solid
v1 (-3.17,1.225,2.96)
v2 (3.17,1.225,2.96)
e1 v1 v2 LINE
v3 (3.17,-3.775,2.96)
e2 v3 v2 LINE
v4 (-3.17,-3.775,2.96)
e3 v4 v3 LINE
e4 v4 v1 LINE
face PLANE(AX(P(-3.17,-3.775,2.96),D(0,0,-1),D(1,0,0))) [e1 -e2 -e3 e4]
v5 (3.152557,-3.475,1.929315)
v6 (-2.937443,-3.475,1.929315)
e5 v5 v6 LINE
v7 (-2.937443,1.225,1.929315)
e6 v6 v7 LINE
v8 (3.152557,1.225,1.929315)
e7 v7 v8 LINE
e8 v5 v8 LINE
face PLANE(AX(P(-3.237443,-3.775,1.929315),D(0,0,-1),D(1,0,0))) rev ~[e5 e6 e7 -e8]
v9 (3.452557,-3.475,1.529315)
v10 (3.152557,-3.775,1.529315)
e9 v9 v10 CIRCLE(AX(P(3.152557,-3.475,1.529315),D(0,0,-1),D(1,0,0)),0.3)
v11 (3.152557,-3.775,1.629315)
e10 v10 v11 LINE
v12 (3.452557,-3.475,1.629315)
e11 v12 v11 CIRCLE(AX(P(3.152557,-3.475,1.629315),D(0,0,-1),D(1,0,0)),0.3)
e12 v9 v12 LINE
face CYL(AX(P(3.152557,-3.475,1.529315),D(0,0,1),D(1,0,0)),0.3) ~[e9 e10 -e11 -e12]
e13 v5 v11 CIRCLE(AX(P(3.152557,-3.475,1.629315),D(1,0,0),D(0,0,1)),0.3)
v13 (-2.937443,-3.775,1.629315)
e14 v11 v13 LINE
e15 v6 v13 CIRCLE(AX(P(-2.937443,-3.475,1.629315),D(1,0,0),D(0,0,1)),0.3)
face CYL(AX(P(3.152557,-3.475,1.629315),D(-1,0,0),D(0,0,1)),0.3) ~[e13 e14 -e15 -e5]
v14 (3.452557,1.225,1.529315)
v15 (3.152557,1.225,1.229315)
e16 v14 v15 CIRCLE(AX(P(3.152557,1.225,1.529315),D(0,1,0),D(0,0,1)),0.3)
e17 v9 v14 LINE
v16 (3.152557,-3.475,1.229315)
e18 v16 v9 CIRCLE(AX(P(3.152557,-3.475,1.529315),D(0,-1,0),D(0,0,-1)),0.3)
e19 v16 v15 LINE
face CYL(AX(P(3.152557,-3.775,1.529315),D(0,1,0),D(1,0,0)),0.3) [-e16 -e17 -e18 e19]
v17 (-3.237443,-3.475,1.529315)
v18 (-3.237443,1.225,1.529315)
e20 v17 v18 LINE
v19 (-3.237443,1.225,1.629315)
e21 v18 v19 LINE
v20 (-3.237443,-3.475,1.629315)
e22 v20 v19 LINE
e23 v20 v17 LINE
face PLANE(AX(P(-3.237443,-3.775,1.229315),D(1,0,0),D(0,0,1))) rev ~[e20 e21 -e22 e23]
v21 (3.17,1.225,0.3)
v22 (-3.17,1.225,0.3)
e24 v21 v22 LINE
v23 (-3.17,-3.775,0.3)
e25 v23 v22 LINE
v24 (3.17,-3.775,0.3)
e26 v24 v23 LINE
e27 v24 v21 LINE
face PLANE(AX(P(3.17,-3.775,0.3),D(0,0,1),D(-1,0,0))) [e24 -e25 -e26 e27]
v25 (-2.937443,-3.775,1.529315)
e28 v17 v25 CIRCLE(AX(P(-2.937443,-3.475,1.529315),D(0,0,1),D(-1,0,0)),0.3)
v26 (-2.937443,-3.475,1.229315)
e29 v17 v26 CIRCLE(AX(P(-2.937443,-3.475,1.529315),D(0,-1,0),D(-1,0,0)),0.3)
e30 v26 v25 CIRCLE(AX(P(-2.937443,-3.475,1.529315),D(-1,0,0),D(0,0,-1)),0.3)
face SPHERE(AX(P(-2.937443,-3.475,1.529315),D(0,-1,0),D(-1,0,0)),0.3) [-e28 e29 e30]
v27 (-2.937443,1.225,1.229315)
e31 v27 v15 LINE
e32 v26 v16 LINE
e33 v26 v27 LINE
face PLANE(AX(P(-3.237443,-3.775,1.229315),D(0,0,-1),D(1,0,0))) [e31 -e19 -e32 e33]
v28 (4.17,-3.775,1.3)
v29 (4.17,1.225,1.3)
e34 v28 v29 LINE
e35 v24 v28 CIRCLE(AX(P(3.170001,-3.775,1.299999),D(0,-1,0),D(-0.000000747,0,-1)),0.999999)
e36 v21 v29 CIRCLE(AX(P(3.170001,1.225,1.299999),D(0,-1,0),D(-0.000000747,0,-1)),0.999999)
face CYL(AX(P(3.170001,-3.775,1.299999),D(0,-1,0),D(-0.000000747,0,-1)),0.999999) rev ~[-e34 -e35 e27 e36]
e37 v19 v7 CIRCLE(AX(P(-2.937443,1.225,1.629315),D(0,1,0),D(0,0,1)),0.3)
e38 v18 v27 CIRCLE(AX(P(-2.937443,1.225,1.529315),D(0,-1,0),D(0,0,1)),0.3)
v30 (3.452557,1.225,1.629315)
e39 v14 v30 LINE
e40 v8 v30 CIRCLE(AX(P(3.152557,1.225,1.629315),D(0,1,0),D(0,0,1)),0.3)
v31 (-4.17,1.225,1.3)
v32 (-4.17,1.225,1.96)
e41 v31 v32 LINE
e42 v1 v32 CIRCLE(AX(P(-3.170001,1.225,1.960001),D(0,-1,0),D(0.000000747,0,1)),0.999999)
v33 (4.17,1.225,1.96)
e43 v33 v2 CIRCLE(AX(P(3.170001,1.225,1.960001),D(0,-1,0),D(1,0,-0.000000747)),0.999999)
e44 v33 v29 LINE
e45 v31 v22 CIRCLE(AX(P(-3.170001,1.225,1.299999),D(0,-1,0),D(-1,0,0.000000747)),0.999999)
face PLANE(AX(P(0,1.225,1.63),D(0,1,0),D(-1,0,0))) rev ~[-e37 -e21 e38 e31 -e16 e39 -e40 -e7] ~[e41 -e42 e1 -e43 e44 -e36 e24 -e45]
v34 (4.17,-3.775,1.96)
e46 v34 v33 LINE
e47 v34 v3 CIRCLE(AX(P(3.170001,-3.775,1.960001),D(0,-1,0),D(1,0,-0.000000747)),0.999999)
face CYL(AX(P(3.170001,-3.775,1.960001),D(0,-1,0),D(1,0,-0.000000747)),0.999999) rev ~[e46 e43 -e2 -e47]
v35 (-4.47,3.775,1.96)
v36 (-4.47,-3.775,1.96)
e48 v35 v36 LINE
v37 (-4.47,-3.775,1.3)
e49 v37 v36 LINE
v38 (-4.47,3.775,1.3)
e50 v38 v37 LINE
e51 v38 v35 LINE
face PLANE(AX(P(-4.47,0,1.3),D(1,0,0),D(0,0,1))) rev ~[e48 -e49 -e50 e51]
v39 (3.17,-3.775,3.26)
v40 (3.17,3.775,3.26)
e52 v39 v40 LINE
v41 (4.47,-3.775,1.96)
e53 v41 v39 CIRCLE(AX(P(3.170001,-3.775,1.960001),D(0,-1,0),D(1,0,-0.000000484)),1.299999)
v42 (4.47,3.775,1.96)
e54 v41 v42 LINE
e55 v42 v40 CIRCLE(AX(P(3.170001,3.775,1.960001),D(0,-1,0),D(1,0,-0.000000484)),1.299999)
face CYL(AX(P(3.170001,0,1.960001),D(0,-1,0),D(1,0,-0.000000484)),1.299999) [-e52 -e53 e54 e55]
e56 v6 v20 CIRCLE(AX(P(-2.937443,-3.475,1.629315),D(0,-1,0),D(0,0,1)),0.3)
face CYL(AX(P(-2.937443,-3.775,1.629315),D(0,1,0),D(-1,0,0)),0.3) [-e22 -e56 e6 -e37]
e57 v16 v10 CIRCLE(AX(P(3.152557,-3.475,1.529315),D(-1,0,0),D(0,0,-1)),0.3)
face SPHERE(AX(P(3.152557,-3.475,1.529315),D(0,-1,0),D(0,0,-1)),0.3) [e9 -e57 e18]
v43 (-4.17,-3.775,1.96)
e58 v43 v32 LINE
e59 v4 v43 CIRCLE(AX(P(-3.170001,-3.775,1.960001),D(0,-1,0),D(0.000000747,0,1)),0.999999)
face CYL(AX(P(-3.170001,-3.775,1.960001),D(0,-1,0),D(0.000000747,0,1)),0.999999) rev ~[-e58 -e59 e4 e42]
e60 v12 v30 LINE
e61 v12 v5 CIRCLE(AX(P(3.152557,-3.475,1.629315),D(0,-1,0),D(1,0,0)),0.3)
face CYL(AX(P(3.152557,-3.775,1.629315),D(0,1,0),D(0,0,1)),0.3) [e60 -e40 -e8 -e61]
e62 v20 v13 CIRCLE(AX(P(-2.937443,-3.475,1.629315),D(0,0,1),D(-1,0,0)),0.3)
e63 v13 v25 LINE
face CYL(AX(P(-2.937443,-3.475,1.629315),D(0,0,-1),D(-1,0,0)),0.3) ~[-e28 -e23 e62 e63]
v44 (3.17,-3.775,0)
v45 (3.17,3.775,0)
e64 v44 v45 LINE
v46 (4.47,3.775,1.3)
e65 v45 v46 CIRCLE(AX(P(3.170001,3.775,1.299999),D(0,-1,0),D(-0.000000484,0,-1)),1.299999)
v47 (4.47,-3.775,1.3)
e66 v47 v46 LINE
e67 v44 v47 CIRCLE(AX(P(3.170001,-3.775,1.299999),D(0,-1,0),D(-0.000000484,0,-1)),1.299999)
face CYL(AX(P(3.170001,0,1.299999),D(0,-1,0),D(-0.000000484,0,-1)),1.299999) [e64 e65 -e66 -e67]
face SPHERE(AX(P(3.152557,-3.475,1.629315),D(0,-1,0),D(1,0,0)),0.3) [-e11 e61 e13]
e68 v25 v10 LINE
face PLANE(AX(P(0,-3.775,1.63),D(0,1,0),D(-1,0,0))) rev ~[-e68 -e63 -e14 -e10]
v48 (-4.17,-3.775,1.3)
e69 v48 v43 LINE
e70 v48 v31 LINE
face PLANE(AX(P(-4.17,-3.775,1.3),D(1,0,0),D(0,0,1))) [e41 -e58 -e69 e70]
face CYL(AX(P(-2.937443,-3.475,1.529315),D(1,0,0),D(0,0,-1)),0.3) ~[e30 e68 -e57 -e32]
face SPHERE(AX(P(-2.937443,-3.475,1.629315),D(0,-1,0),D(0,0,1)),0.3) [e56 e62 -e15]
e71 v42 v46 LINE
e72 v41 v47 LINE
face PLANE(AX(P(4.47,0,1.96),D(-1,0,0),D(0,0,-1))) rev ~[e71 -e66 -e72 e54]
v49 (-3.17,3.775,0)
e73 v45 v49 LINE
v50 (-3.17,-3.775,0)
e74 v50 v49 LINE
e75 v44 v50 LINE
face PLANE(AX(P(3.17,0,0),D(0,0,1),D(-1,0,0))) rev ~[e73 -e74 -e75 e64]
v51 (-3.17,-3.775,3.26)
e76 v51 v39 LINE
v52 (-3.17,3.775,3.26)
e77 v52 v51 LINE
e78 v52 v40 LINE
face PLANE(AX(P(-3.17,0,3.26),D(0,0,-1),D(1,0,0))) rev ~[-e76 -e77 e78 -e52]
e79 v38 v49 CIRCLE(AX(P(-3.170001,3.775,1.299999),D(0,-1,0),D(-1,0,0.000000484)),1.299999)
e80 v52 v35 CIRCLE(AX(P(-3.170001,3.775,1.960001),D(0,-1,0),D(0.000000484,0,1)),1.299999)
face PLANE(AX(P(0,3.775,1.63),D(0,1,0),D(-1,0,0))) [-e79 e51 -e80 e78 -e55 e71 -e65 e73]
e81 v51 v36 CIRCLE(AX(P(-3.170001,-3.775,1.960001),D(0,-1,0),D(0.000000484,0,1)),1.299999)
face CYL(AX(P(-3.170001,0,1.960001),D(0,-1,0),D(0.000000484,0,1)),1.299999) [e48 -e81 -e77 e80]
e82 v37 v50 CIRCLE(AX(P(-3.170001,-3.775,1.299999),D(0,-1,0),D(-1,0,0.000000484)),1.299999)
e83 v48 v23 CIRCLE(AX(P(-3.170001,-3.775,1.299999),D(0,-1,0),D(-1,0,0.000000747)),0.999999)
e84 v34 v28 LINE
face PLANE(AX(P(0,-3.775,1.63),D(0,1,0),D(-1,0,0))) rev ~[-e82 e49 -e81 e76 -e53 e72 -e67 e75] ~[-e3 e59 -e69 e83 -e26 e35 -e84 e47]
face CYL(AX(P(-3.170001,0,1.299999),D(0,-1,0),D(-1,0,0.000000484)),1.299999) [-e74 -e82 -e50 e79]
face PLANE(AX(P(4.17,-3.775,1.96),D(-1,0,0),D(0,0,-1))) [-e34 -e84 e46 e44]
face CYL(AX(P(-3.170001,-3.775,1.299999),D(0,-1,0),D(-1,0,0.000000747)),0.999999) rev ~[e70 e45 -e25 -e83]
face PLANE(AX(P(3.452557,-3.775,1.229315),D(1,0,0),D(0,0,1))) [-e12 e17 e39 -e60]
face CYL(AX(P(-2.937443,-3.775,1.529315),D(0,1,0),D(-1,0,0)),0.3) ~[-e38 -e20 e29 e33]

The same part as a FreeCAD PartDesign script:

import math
import FreeCAD as App
import Part
import Sketcher
from FreeCAD import Vector


def edges_at(feature, points):
    """Names of the edges that pass closest to the given points."""
    edges = feature.Shape.Edges
    near = lambda p: min(range(len(edges)), key=lambda i: edges[i].distToShape(Part.Vertex(*p))[0])
    return sorted({f"Edge{near(p) + 1}" for p in points})

doc = App.newDocument("Part")
body = doc.addObject("PartDesign::Body", "Body")

# Sketch on XZ plane
sketch1 = body.newObject("Sketcher::SketchObject", "Sketch")
sketch1.AttachmentSupport = (doc.getObject("XZ_Plane"), [""])
sketch1.MapMode = "FlatFace"
sketch1.addGeometry([
    Part.LineSegment(Vector(3.2, 3.3, 0), Vector(-3.2, 3.3, 0)),  # 0
    Part.ArcOfCircle(Part.Circle(Vector(-3.2, 2, 0), Vector(0, 0, 1), 1.3), math.radians(90), math.radians(180)),  # 1
    Part.LineSegment(Vector(-4.5, 2, 0), Vector(-4.5, 1.3, 0)),  # 2
    Part.ArcOfCircle(Part.Circle(Vector(-3.2, 1.3, 0), Vector(0, 0, 1), 1.3), math.radians(180), math.radians(270)),  # 3
    Part.LineSegment(Vector(-3.2, 0, 0), Vector(3.2, 0, 0)),  # 4
    Part.ArcOfCircle(Part.Circle(Vector(3.2, 1.3, 0), Vector(0, 0, 1), 1.3), math.radians(-90), math.radians(0)),  # 5
    Part.LineSegment(Vector(4.5, 1.3, 0), Vector(4.5, 2, 0)),  # 6
    Part.ArcOfCircle(Part.Circle(Vector(3.2, 2, 0), Vector(0, 0, 1), 1.3), math.radians(0), math.radians(90)),  # 7
], False)
sketch1.addConstraint([
    Sketcher.Constraint("Tangent", 0, 2, 1, 1),
    Sketcher.Constraint("Tangent", 1, 2, 2, 1),
    Sketcher.Constraint("Tangent", 2, 2, 3, 1),
    Sketcher.Constraint("Tangent", 3, 2, 4, 1),
    Sketcher.Constraint("Tangent", 4, 2, 5, 1),
    Sketcher.Constraint("Tangent", 5, 2, 6, 1),
    Sketcher.Constraint("Tangent", 6, 2, 7, 1),
    Sketcher.Constraint("Tangent", 7, 2, 0, 1),
    Sketcher.Constraint("Horizontal", 0),
    Sketcher.Constraint("Vertical", 2),
    Sketcher.Constraint("Horizontal", 4),
    Sketcher.Constraint("Vertical", 6),
    Sketcher.Constraint("Equal", 1, 3),
    Sketcher.Constraint("Equal", 3, 5),
    Sketcher.Constraint("Equal", 5, 7),
    Sketcher.Constraint("Symmetric", 3, 2, 4, 2, -1, 1),
    Sketcher.Constraint("Radius", 1, 1.299999),
    Sketcher.Constraint("DistanceX", 0, 2, 0, 1, 6.34),
    Sketcher.Constraint("DistanceY", 2, 2, 2, 1, 0.66),
])
pad1 = body.newObject("PartDesign::Pad", "Pad")
pad1.Profile = sketch1
pad1.Length = 7.55
pad1.Midplane = True

# Sketch on XZ plane
sketch2 = body.newObject("Sketcher::SketchObject", "Sketch001")
sketch2.AttachmentSupport = (doc.getObject("XZ_Plane"), [""])
sketch2.MapMode = "FlatFace"
sketch2.AttachmentOffset = App.Placement(Vector(0, 0, 3.775), App.Rotation())
sketch2.addGeometry([
    Part.LineSegment(Vector(3.2, 3, 0), Vector(-3.2, 3, 0)),  # 0
    Part.ArcOfCircle(Part.Circle(Vector(-3.2, 2, 0), Vector(0, 0, 1), 1), math.radians(90), math.radians(180)),  # 1
    Part.LineSegment(Vector(-4.2, 2, 0), Vector(-4.2, 1.3, 0)),  # 2
    Part.ArcOfCircle(Part.Circle(Vector(-3.2, 1.3, 0), Vector(0, 0, 1), 1), math.radians(180), math.radians(270)),  # 3
    Part.LineSegment(Vector(-3.2, 0.3, 0), Vector(3.2, 0.3, 0)),  # 4
    Part.ArcOfCircle(Part.Circle(Vector(3.2, 1.3, 0), Vector(0, 0, 1), 1), math.radians(-90), math.radians(0)),  # 5
    Part.LineSegment(Vector(4.2, 1.3, 0), Vector(4.2, 2, 0)),  # 6
    Part.ArcOfCircle(Part.Circle(Vector(3.2, 2, 0), Vector(0, 0, 1), 1), math.radians(0), math.radians(90)),  # 7
    Part.LineSegment(Vector(-3.2, 1.2, 0), Vector(-3.2, 1.9, 0)),  # 8
    Part.LineSegment(Vector(-3.2, 1.9, 0), Vector(3.5, 1.9, 0)),  # 9
    Part.LineSegment(Vector(3.5, 1.9, 0), Vector(3.5, 1.2, 0)),  # 10
    Part.LineSegment(Vector(3.5, 1.2, 0), Vector(-3.2, 1.2, 0)),  # 11
], False)
sketch2.addConstraint([
    Sketcher.Constraint("Tangent", 0, 2, 1, 1),
    Sketcher.Constraint("Tangent", 1, 2, 2, 1),
    Sketcher.Constraint("Tangent", 2, 2, 3, 1),
    Sketcher.Constraint("Tangent", 3, 2, 4, 1),
    Sketcher.Constraint("Tangent", 4, 2, 5, 1),
    Sketcher.Constraint("Tangent", 5, 2, 6, 1),
    Sketcher.Constraint("Tangent", 6, 2, 7, 1),
    Sketcher.Constraint("Tangent", 7, 2, 0, 1),
    Sketcher.Constraint("Coincident", 8, 2, 9, 1),
    Sketcher.Constraint("Coincident", 9, 2, 10, 1),
    Sketcher.Constraint("Coincident", 10, 2, 11, 1),
    Sketcher.Constraint("Coincident", 11, 2, 8, 1),
    Sketcher.Constraint("Horizontal", 0),
    Sketcher.Constraint("Vertical", 2),
    Sketcher.Constraint("Horizontal", 4),
    Sketcher.Constraint("Vertical", 6),
    Sketcher.Constraint("Vertical", 8),
    Sketcher.Constraint("Horizontal", 9),
    Sketcher.Constraint("Vertical", 10),
    Sketcher.Constraint("Horizontal", 11),
    Sketcher.Constraint("Equal", 1, 3),
    Sketcher.Constraint("Equal", 3, 5),
    Sketcher.Constraint("Equal", 5, 7),
    Sketcher.Constraint("Radius", 1, 0.999999),
    Sketcher.Constraint("DistanceY", 8, 1, 8, 2, 0.7),
    Sketcher.Constraint("DistanceX", 0, 2, 0, 1, 6.34),
    Sketcher.Constraint("DistanceX", 9, 1, 9, 2, 6.69),
    Sketcher.Constraint("DistanceY", 2, 2, 2, 1, 0.66),
    Sketcher.Constraint("DistanceY", -1, 1, 3, 3, 1.299999),
    Sketcher.Constraint("DistanceX", 1, 3, -1, 1, 3.170001),
    Sketcher.Constraint("DistanceX", 8, 2, -1, 1, 3.237443),
    Sketcher.Constraint("DistanceY", -1, 1, 8, 2, 1.929315),
])
pocket1 = body.newObject("PartDesign::Pocket", "Pocket")
pocket1.Profile = sketch2
pocket1.Length = 5
doc.recompute()

fillet = body.newObject("PartDesign::Fillet", "Fillet")
fillet.Base = (pocket1, edges_at(pocket1, [
    (3.453, -1.275, 1.229),
    (3.453, -1.275, 1.929),
    (-3.237, -1.275, 1.929),
    (-3.237, -1.275, 1.229),
]))
fillet.Radius = 0.3
doc.recompute()

fillet2 = body.newObject("PartDesign::Fillet", "Fillet001")
fillet2.Base = (fillet, edges_at(fillet, [
    (0.108, -3.775, 1.229),
    (3.365, -3.775, 1.317),
    (-3.15, -3.775, 1.317),
    (3.453, -3.775, 1.579),
    (-3.237, -3.775, 1.579),
    (3.365, -3.775, 1.841),
    (-3.15, -3.775, 1.841),
    (0.108, -3.775, 1.929),
]))
fillet2.Radius = 0.3

doc.recompute()
